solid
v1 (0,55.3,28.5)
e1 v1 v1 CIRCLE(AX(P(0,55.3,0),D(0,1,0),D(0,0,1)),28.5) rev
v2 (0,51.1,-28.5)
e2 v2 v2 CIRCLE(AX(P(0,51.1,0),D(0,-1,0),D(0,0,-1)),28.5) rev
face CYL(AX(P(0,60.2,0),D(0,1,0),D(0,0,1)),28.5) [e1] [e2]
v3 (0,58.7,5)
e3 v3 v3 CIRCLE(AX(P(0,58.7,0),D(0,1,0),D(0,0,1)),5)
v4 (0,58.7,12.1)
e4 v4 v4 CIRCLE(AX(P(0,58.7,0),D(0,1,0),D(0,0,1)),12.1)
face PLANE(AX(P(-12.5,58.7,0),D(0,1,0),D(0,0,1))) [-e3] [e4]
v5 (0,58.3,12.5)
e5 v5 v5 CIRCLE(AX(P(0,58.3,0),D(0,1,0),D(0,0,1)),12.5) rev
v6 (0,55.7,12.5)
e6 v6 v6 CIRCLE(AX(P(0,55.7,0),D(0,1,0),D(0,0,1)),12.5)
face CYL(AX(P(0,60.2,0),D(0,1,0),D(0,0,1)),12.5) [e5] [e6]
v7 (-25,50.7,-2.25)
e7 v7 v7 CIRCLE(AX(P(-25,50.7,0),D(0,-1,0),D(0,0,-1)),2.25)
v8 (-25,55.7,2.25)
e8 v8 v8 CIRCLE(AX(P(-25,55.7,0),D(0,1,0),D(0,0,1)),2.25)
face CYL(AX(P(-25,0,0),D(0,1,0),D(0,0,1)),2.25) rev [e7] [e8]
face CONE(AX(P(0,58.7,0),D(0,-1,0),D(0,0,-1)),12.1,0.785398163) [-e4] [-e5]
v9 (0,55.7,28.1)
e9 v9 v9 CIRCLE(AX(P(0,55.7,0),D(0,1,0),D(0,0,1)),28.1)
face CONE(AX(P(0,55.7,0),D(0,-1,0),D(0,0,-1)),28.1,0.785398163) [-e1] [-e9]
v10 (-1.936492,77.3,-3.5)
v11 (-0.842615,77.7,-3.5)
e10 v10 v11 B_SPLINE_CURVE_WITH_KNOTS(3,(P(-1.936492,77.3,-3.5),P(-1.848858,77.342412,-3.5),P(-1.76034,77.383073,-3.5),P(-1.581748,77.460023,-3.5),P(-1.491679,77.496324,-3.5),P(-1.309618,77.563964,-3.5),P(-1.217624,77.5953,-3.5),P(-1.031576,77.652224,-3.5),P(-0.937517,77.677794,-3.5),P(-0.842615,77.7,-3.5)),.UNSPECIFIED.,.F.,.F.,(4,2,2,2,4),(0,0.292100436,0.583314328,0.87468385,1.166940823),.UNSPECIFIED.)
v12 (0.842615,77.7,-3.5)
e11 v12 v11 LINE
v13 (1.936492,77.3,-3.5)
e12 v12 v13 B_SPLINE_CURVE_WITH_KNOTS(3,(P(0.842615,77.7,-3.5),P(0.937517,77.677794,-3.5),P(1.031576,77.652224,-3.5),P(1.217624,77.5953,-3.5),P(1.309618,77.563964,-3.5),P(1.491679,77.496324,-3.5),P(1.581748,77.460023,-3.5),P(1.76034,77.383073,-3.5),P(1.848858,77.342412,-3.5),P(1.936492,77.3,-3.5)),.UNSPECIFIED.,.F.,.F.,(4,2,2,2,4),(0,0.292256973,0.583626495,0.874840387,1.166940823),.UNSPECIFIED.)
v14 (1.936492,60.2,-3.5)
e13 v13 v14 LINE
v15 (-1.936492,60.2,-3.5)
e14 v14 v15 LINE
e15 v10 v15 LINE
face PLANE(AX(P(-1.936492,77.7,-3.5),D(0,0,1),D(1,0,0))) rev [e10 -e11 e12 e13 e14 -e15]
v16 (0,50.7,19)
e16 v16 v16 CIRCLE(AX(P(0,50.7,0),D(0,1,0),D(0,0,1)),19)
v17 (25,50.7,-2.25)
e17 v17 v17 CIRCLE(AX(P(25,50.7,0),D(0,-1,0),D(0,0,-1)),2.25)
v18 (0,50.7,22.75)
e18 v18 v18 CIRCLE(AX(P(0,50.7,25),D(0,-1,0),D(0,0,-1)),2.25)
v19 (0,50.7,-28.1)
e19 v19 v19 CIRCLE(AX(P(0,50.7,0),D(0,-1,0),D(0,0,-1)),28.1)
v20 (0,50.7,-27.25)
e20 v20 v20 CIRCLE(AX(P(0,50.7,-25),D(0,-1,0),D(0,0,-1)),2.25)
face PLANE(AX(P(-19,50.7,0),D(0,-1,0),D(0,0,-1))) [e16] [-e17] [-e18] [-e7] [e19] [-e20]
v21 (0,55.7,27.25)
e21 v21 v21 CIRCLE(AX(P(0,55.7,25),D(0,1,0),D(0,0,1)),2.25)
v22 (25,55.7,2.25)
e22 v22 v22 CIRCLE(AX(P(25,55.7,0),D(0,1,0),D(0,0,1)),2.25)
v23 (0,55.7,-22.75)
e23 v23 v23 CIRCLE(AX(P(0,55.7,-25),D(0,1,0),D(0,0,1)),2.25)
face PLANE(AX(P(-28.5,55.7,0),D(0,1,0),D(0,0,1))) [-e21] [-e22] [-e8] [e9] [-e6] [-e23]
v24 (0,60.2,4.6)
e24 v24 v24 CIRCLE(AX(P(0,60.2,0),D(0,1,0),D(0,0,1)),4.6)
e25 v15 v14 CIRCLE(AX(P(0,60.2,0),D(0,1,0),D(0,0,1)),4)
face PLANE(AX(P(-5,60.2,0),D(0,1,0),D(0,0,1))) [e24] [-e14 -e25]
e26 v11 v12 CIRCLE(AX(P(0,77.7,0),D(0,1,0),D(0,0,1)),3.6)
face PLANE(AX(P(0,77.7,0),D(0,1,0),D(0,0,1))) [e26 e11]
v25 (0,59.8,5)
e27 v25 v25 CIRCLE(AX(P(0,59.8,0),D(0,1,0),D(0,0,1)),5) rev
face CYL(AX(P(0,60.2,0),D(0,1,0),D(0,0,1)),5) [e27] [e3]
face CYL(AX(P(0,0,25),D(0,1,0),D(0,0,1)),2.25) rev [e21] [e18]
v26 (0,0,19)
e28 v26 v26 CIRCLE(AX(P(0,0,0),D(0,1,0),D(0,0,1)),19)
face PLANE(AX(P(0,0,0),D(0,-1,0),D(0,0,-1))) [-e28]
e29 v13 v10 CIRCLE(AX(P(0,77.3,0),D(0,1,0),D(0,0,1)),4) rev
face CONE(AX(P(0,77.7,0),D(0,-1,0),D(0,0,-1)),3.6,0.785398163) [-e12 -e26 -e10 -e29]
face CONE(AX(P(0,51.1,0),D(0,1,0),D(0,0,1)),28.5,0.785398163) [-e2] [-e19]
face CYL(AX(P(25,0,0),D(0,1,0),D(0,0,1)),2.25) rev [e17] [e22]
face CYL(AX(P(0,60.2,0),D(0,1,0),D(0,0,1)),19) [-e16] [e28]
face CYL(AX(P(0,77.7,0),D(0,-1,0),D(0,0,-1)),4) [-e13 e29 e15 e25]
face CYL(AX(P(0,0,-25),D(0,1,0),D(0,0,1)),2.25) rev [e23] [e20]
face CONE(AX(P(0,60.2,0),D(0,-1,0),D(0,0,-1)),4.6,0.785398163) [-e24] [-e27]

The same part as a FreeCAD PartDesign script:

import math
import FreeCAD as App
import Part
import Sketcher

V = App.Vector
Q = App.Units.Quantity


def edges_at(feature, points):
    """Names of the edges that pass closest to the given points."""
    edges = feature.Shape.Edges
    near = lambda p: min(range(len(edges)), key=lambda i: edges[i].distToShape(Part.Vertex(*p))[0])
    return sorted({f"Edge{near(p) + 1}" for p in points})


def add_polygon(sketch, points):
    """Adds a closed chain of lines whose ends are joined by coincident constraints."""
    first, n = sketch.GeometryCount, len(points)
    for a, b in zip(points, points[1:] + points[:1]):
        sketch.addGeometry(Part.LineSegment(App.Vector(*a, 0), App.Vector(*b, 0)), False)
    for i in range(n):
        sketch.addConstraint(Sketcher.Constraint("Coincident", first + i, 2, first + (i + 1) % n, 1))

doc = App.newDocument("Part")
body = doc.addObject("PartDesign::Body", "Body")

sketch1 = body.newObject("Sketcher::SketchObject", "Sketch")
sketch1.AttachmentSupport = (doc.getObject("XY_Plane"), [""])
sketch1.MapMode = "FlatFace"
add_polygon(sketch1, [(-19, 0), (0, 0), (0, 60.2), (-5, 60.2), (-5, 58.7), (-12.5, 58.7), (-12.5, 55.7), (-28.5, 55.7), (-28.5, 50.7), (-19, 50.7)])
sketch1.addConstraint([
    Sketcher.Constraint("Horizontal", 0),
    Sketcher.Constraint("Vertical", 1),
    Sketcher.Constraint("Horizontal", 2),
    Sketcher.Constraint("Vertical", 3),
    Sketcher.Constraint("Horizontal", 4),
    Sketcher.Constraint("Vertical", 5),
    Sketcher.Constraint("Horizontal", 6),
    Sketcher.Constraint("Vertical", 7),
    Sketcher.Constraint("Horizontal", 8),
    Sketcher.Constraint("Vertical", 9),
    Sketcher.Constraint("Coincident", 0, 2, -1, 1),
    Sketcher.Constraint("Equal", 2, 7),
    Sketcher.Constraint("DistanceX", 0, 1, 0, 2, Q("19 mm")),
    Sketcher.Constraint("DistanceX", 2, 2, 2, 1, Q("5 mm")),
    Sketcher.Constraint("DistanceX", 6, 2, 6, 1, Q("16 mm")),
    Sketcher.Constraint("DistanceY", 5, 2, 5, 1, Q("3 mm")),
    Sketcher.Constraint("DistanceX", 4, 2, 4, 1, Q("7.5 mm")),
    Sketcher.Constraint("DistanceY", 1, 1, 1, 2, Q("60.2 mm")),
    Sketcher.Constraint("DistanceY", 3, 2, 3, 1, Q("1.5 mm")),
])
revolution = body.newObject("PartDesign::Revolution", "Revolution")
revolution.Profile = sketch1
revolution.ReferenceAxis = (sketch1, ["V_Axis"])
revolution.Angle = 360

sketch2 = body.newObject("Sketcher::SketchObject", "Sketch001")
sketch2.AttachmentSupport = (doc.getObject("XZ_Plane"), [""])
sketch2.MapMode = "FlatFace"
sketch2.AttachmentOffset = App.Placement(V(0, 0, -60.2), App.Rotation())
sketch2.addGeometry([
    Part.LineSegment(V(1.9, -3.5, 0), V(-1.9, -3.5, 0)),
    Part.ArcOfCircle(Part.Circle(V(0, 0, 0), V(0, 0, 1), 4), math.radians(-61), math.radians(241)),
], False)
sketch2.addConstraint([
    Sketcher.Constraint("Coincident", 0, 1, 1, 1),
    Sketcher.Constraint("Coincident", 1, 2, 0, 2),
    Sketcher.Constraint("Horizontal", 0),
    Sketcher.Constraint("Coincident", 1, 3, -1, 1),
    Sketcher.Constraint("Radius", 1, Q("4 mm")),
    Sketcher.Constraint("DistanceY", 0, 1, -1, 1, Q("3.5 mm")),
])
pad1 = body.newObject("PartDesign::Pad", "Pad")
pad1.Profile = sketch2
pad1.Length = 17.5
pad1.Reversed = True

sketch3 = body.newObject("Sketcher::SketchObject", "Sketch002")
sketch3.AttachmentSupport = (doc.getObject("XZ_Plane"), [""])
sketch3.MapMode = "FlatFace"
sketch3.AttachmentOffset = App.Placement(V(0, 0, -55.7), App.Rotation())
sketch3.addGeometry([
    Part.Circle(V(-25, 0, 0), V(0, 0, 1), 2.2),
    Part.Circle(V(0, -25, 0), V(0, 0, 1), 2.2),
    Part.Circle(V(25, 0, 0), V(0, 0, 1), 2.2),
    Part.Circle(V(0, 25, 0), V(0, 0, 1), 2.2),
], False)
sketch3.addConstraint([
    Sketcher.Constraint("Equal", 0, 1),
    Sketcher.Constraint("Equal", 1, 2),
    Sketcher.Constraint("Equal", 2, 3),
    Sketcher.Constraint("Symmetric", 0, 3, 2, 3, -1, 1),
    Sketcher.Constraint("Symmetric", 1, 3, 3, 3, -1, 1),
    Sketcher.Constraint("PointOnObject", 0, 3, -1),
    Sketcher.Constraint("PointOnObject", 1, 3, -2),
    Sketcher.Constraint("Diameter", 0, Q("4.5 mm")),
    Sketcher.Constraint("DistanceX", 0, 3, -1, 1, Q("25 mm")),
    Sketcher.Constraint("DistanceY", 1, 3, -1, 1, Q("25 mm")),
])
pocket1 = body.newObject("PartDesign::Pocket", "Pocket")
pocket1.Profile = sketch3
pocket1.Type = "ThroughAll"
pocket1.Reversed = True
doc.recompute()

chamfer = body.newObject("PartDesign::Chamfer", "Chamfer")
chamfer.Base = (pocket1, edges_at(pocket1, [(28.5, 55.7, 0), (28.5, 50.7, 0), (12.5, 58.7, 0)]))
chamfer.Size = 0.4
doc.recompute()

chamfer2 = body.newObject("PartDesign::Chamfer", "Chamfer001")
chamfer2.Base = (chamfer, edges_at(chamfer, [(0, 77.7, 4)]))
chamfer2.Size = 0.4
doc.recompute()

chamfer3 = body.newObject("PartDesign::Chamfer", "Chamfer002")
chamfer3.Base = (chamfer2, edges_at(chamfer2, [(5, 60.2, 0)]))
chamfer3.Size = 0.4

doc.recompute()
